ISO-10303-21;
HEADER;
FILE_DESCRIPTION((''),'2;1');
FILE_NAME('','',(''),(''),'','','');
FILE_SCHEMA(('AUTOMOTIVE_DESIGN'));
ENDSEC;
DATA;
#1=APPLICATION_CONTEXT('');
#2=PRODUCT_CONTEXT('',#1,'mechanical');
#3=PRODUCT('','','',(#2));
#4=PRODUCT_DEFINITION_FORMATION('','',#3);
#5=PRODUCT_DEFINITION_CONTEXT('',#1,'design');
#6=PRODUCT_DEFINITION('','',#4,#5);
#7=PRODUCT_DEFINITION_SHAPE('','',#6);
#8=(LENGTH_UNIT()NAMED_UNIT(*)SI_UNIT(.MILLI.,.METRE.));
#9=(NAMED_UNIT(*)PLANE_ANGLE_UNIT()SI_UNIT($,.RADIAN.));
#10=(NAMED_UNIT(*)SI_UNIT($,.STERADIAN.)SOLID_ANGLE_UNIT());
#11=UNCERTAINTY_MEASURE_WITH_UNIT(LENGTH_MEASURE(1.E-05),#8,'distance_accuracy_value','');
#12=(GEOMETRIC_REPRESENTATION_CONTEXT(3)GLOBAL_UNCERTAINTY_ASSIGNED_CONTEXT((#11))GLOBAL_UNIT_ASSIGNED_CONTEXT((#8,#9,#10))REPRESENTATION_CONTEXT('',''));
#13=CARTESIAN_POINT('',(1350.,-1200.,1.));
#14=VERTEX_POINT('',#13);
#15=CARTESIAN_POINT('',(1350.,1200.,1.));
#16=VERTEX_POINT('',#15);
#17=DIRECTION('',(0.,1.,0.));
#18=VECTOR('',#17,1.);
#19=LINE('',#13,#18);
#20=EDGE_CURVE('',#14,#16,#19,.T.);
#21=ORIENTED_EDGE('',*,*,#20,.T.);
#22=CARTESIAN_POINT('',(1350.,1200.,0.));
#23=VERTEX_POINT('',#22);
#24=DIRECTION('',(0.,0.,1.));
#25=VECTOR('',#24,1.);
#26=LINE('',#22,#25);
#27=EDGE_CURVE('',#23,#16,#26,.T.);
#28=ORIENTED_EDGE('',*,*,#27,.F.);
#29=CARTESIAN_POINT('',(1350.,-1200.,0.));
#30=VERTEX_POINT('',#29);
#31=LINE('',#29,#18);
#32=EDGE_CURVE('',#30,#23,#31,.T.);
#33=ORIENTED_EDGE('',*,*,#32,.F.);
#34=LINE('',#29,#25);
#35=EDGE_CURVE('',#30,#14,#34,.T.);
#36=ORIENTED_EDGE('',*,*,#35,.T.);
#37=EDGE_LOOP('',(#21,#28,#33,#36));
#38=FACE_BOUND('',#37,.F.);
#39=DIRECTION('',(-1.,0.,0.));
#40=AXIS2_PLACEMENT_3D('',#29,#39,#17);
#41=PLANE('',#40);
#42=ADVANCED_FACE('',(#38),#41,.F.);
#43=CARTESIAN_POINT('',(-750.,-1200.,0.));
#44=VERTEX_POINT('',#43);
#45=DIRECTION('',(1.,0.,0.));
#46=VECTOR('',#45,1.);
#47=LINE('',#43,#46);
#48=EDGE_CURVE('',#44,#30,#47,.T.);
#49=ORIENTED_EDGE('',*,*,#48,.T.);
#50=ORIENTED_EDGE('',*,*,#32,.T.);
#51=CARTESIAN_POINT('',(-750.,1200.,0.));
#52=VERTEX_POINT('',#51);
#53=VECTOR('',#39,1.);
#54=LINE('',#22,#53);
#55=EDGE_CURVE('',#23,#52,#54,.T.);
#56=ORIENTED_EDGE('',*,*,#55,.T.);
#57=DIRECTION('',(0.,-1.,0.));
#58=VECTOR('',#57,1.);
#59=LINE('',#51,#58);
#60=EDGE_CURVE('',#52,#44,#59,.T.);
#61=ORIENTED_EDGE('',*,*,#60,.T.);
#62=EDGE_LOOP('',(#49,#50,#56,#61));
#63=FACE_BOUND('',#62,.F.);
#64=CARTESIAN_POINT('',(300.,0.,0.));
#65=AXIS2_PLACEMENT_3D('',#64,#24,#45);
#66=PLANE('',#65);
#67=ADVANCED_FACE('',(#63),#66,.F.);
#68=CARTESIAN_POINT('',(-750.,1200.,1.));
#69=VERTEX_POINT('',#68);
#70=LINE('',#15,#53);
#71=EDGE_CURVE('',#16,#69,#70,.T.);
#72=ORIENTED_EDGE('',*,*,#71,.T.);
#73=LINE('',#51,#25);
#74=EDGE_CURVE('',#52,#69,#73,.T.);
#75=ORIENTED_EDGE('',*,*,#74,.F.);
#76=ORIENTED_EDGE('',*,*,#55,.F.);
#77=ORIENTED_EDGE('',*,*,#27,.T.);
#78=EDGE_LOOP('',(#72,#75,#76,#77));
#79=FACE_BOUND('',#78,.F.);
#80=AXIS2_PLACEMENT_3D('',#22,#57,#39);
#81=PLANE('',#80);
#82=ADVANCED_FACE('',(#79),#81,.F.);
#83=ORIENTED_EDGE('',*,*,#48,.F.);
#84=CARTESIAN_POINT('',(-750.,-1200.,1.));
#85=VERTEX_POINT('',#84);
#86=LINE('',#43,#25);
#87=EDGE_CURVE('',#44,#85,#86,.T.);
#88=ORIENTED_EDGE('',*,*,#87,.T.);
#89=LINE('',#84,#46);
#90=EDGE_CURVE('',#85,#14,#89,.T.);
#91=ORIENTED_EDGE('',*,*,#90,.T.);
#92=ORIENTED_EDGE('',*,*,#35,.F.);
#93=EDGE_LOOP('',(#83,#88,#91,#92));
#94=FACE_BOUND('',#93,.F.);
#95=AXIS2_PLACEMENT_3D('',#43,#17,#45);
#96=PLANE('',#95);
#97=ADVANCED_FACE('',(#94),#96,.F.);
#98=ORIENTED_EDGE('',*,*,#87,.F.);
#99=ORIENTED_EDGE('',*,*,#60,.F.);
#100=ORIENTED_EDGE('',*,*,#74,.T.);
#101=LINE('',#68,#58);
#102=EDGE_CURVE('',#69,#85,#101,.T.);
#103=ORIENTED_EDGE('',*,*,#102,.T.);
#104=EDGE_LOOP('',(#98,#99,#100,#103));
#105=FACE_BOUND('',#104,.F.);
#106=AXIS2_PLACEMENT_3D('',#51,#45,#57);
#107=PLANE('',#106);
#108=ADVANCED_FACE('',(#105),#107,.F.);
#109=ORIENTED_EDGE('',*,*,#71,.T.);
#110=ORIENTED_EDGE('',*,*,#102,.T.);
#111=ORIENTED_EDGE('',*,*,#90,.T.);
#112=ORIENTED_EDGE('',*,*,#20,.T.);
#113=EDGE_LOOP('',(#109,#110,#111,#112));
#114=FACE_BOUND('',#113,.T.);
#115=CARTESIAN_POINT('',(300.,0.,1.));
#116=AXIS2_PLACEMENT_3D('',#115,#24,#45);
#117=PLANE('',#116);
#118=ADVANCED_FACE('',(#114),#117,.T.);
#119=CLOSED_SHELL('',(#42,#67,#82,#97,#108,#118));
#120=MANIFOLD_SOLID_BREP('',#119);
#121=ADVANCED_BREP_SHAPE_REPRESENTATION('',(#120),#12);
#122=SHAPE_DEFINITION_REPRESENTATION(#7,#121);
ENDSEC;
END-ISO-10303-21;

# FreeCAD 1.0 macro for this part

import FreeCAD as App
import Part
import Sketcher

V = App.Vector
Q = App.Units.Quantity

doc = App.newDocument("Part")
params = doc.addObject("Spreadsheet::Sheet", "Params")
for row, (alias, value) in enumerate([
    ("sketch1_width", "2100 mm"),
    ("sketch1_height", "2400 mm"),
    ("pad1_length", "1 mm"),
], start=1):
    params.set(f"A{row}", alias)
    params.set(f"B{row}", "=" + value)
    params.setAlias(f"B{row}", alias)

body = doc.addObject("PartDesign::Body", "Body")

sketch1 = body.newObject("Sketcher::SketchObject", "Sketch")
sketch1.AttachmentSupport = (doc.getObject("XY_Plane"), [""])
sketch1.MapMode = "FlatFace"
sketch1.addGeometry([
    Part.LineSegment(V(-750, -1200, 0), V(1350, -1200, 0)),
    Part.LineSegment(V(1350, -1200, 0), V(1350, 1200, 0)),
    Part.LineSegment(V(1350, 1200, 0), V(-750, 1200, 0)),
    Part.LineSegment(V(-750, 1200, 0), V(-750, -1200, 0)),
], False)
sketch1.addConstraint([
    Sketcher.Constraint("Coincident", 0, 2, 1, 1),
    Sketcher.Constraint("Coincident", 1, 2, 2, 1),
    Sketcher.Constraint("Coincident", 2, 2, 3, 1),
    Sketcher.Constraint("Coincident", 3, 2, 0, 1),
    Sketcher.Constraint("Horizontal", 0),
    Sketcher.Constraint("Vertical", 1),
    Sketcher.Constraint("Horizontal", 2),
    Sketcher.Constraint("Vertical", 3),
    Sketcher.Constraint("DistanceX", 0, 1, 0, 2, Q("2100 mm")),
    Sketcher.Constraint("DistanceY", 1, 1, 1, 2, Q("2400 mm")),
    Sketcher.Constraint("DistanceX", -1, 1, 0, 2, Q("1350 mm")),
    Sketcher.Constraint("DistanceY", 0, 2, -1, 1, Q("1200 mm")),
])
sketch1.setExpression("Constraints[8]", "Params.sketch1_width")
sketch1.setExpression("Constraints[9]", "Params.sketch1_height")
pad1 = body.newObject("PartDesign::Pad", "Pad")
pad1.Profile = sketch1
pad1.setExpression("Length", "Params.pad1_length")

doc.recompute()
